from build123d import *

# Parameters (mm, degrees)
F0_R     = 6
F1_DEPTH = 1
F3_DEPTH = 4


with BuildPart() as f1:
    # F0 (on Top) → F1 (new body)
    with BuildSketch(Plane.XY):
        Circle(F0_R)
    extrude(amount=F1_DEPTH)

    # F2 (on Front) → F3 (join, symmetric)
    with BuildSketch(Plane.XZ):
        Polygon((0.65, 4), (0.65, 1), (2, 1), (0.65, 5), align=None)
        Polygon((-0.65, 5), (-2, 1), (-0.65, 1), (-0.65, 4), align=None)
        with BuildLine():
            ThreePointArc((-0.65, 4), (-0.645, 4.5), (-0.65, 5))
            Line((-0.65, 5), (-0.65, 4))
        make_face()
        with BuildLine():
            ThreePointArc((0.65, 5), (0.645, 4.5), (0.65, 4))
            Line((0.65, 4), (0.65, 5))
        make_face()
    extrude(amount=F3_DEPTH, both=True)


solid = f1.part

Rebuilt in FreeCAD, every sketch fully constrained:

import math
import FreeCAD as App
import Part
import Sketcher

V = App.Vector

doc = App.newDocument("Part")
body = doc.addObject("PartDesign::Body", "Body")

sketch1 = doc.addObject("Sketcher::SketchObject", "Sketch")
body.addObject(sketch1)
sketch1.AttachmentSupport = (doc.XY_Plane, [""])
sketch1.MapMode = "FlatFace"
sketch1.addGeometry(Part.Circle(V(0, 0, 0), V(0, 0, 1), 6), False)
sketch1.addConstraint([
    Sketcher.Constraint("Coincident", 0, 3, -1, 1),
    Sketcher.Constraint("Diameter", 0, 12.0),
])
pad1 = doc.addObject("PartDesign::Pad", "Pad")
body.addObject(pad1)
pad1.Profile = sketch1
pad1.Length = 1

sketch2 = doc.addObject("Sketcher::SketchObject", "Sketch001")
body.addObject(sketch2)
sketch2.AttachmentSupport = (doc.XZ_Plane, [""])
sketch2.MapMode = "FlatFace"
sketch2.addGeometry([
    Part.LineSegment(V(0.65, 1, 0), V(2, 1, 0)),
    Part.LineSegment(V(2, 1, 0), V(0.65, 5, 0)),
    Part.ArcOfCircle(Part.Circle(V(25.6475, 4.5, 0), V(0, 0, 1), 25.0025), math.radians(178.854123), math.radians(181.145877)),
    Part.LineSegment(V(0.65, 4, 0), V(0.65, 1, 0)),
    Part.LineSegment(V(-0.65, 5, 0), V(-2, 1, 0)),
    Part.LineSegment(V(-2, 1, 0), V(-0.65, 1, 0)),
    Part.LineSegment(V(-0.65, 1, 0), V(-0.65, 4, 0)),
    Part.ArcOfCircle(Part.Circle(V(-25.6475, 4.5, 0), V(0, 0, 1), 25.0025), math.radians(-1.145877), math.radians(1.145877)),
], False)
sketch2.addConstraint([
    Sketcher.Constraint("Coincident", 0, 2, 1, 1),
    Sketcher.Constraint("Coincident", 1, 2, 2, 1),
    Sketcher.Constraint("Coincident", 2, 2, 3, 1),
    Sketcher.Constraint("Coincident", 3, 2, 0, 1),
    Sketcher.Constraint("Coincident", 4, 2, 5, 1),
    Sketcher.Constraint("Coincident", 5, 2, 6, 1),
    Sketcher.Constraint("Coincident", 6, 2, 7, 1),
    Sketcher.Constraint("Coincident", 7, 2, 4, 1),
    Sketcher.Constraint("Horizontal", 0),
    Sketcher.Constraint("Vertical", 3),
    Sketcher.Constraint("Horizontal", 5),
    Sketcher.Constraint("Vertical", 6),
    Sketcher.Constraint("Equal", 2, 7),
    Sketcher.Constraint("Symmetric", 2, 3, 7, 3, -2),
    Sketcher.Constraint("Symmetric", 0, 2, 4, 2, -2),
    Sketcher.Constraint("Horizontal", 2, 2, 6, 2),
    Sketcher.Constraint("Horizontal", 1, 2, 7, 2),
    Sketcher.Constraint("Vertical", 1, 2, 2, 2),
    Sketcher.Constraint("DistanceY", 3, 2, 3, 1, 3.0),
    Sketcher.Constraint("DistanceX", -1, 1, 0, 2, 2.0),
    Sketcher.Constraint("DistanceY", -1, 1, 0, 2, 1.0),
    Sketcher.Constraint("DistanceY", -1, 1, 1, 2, 5.0),
    Sketcher.Constraint("DistanceX", 0, 1, 0, 2, 1.35),
    Sketcher.Constraint("Radius", 2, 25.0025),
])
pad2 = doc.addObject("PartDesign::Pad", "Pad001")
body.addObject(pad2)
pad2.Profile = sketch2
pad2.Length = 8
pad2.Midplane = True

doc.recompute()
